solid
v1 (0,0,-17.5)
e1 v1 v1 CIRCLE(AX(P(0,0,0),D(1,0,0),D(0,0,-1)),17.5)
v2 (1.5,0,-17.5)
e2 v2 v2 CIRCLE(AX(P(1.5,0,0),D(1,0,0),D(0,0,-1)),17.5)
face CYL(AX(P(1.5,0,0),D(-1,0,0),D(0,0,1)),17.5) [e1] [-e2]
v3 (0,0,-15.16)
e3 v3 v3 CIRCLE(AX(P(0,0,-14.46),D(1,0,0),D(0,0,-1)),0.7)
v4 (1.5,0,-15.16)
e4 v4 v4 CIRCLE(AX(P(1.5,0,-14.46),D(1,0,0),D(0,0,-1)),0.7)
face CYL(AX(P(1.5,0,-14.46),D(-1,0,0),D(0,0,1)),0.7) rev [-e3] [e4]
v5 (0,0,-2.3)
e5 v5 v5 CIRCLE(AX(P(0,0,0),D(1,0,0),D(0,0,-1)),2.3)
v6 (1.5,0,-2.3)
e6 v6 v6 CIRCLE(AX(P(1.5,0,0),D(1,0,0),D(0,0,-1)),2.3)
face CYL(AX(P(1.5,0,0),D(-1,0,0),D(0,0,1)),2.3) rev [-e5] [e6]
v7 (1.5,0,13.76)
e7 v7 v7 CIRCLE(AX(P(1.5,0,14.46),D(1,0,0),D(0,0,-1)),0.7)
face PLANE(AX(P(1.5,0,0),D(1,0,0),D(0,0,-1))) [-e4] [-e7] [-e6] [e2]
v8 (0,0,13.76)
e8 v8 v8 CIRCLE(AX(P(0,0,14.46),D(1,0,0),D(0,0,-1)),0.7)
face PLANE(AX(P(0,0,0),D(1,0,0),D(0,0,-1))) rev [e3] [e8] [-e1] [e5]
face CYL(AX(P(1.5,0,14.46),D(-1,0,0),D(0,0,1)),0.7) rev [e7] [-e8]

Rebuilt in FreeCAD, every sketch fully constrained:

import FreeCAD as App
import Part
import Sketcher

V = App.Vector

doc = App.newDocument("Part")
body = doc.addObject("PartDesign::Body", "Body")

sketch1 = doc.addObject("Sketcher::SketchObject", "Sketch")
body.addObject(sketch1)
sketch1.AttachmentSupport = (doc.YZ_Plane, [""])
sketch1.MapMode = "FlatFace"
sketch1.addGeometry(Part.Circle(V(0, 0, 0), V(0, 0, 1), 17.5), False)
sketch1.addGeometry(Part.Circle(V(0, 14.5, 0), V(0, 0, 1), 0.7), False)
sketch1.addGeometry(Part.Circle(V(0, 0, 0), V(0, 0, 1), 2.3), False)
sketch1.addGeometry(Part.Circle(V(0, -14.5, 0), V(0, 0, 1), 0.7), False)
sketch1.addConstraint(Sketcher.Constraint("Coincident", 0, 3, -1, 1))
sketch1.addConstraint(Sketcher.Constraint("Coincident", 2, 3, -1, 1))
sketch1.addConstraint(Sketcher.Constraint("Equal", 1, 3))
sketch1.addConstraint(Sketcher.Constraint("Symmetric", 1, 3, 3, 3, -1, 1))
sketch1.addConstraint(Sketcher.Constraint("PointOnObject", 1, 3, -2))
sketch1.addConstraint(Sketcher.Constraint("Diameter", 0, 35.0))
sketch1.addConstraint(Sketcher.Constraint("Diameter", 1, 1.4))
sketch1.addConstraint(Sketcher.Constraint("Diameter", 2, 4.6))
sketch1.addConstraint(Sketcher.Constraint("DistanceY", -1, 1, 1, 3, 14.46))
pad1 = doc.addObject("PartDesign::Pad", "Pad")
body.addObject(pad1)
pad1.Profile = sketch1
pad1.Length = 1.5

doc.recompute()
